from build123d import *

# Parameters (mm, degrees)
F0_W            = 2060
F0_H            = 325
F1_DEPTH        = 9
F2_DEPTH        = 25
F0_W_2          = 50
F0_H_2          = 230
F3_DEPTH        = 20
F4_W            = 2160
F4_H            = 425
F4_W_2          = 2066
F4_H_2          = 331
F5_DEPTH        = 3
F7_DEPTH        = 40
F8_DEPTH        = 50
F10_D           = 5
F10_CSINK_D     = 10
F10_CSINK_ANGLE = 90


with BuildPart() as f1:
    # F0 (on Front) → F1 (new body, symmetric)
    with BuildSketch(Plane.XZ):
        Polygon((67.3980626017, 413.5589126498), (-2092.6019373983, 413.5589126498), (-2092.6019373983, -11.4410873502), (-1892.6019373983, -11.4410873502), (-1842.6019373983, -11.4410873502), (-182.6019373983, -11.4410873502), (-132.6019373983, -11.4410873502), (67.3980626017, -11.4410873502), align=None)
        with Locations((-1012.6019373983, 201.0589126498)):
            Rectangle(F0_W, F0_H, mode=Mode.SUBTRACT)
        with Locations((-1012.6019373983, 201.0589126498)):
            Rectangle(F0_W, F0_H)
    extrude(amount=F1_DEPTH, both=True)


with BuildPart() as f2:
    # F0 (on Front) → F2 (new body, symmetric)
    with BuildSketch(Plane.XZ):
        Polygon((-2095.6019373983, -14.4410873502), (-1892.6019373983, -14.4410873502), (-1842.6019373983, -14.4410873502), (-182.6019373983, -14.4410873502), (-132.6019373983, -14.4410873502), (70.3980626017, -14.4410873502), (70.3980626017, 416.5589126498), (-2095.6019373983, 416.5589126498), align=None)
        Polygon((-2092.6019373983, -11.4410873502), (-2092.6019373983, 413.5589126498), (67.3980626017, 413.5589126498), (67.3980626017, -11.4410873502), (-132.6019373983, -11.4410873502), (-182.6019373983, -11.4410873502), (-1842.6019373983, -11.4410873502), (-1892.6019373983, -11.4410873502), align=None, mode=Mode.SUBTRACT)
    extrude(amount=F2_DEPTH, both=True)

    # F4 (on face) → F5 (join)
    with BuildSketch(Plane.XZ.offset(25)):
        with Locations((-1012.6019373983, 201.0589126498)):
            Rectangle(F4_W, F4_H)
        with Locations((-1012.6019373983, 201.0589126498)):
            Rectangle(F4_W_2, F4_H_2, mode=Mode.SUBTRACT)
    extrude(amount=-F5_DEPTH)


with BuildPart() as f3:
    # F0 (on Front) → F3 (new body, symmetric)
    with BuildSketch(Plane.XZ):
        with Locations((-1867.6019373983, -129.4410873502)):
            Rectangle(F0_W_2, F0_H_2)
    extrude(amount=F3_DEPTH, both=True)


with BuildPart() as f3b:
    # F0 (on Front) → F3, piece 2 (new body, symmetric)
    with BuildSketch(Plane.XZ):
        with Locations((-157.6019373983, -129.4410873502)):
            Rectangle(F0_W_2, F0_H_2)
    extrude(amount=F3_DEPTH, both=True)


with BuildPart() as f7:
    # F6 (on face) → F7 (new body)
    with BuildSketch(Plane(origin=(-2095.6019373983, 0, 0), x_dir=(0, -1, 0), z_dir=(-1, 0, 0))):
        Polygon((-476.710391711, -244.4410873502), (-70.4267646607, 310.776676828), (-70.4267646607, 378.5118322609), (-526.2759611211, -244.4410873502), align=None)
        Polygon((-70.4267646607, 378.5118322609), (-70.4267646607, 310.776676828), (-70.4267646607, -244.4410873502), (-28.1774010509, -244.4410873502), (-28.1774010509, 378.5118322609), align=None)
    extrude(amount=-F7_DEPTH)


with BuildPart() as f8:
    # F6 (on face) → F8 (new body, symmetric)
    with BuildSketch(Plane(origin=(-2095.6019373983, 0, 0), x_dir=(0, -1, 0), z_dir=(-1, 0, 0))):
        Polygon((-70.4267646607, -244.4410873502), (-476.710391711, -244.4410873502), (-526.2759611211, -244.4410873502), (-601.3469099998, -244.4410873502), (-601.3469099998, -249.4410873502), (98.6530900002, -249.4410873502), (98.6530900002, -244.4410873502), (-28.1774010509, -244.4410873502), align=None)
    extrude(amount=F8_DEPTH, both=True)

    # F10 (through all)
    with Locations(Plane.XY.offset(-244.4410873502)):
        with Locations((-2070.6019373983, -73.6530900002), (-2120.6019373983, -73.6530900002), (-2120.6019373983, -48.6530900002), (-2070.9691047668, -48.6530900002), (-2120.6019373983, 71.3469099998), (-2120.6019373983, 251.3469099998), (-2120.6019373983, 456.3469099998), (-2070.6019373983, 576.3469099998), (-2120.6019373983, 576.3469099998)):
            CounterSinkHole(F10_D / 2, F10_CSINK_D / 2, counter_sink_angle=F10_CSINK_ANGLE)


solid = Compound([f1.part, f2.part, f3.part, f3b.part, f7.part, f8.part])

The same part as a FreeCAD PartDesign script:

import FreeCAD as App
import Part
import Sketcher
from FreeCAD import Vector
Q = App.Units.Quantity

doc = App.newDocument("Part")
body = doc.addObject("PartDesign::Body", "Body")

sketch1 = body.newObject("Sketcher::SketchObject", "Sketch")
sketch1.AttachmentSupport = (doc.getObject("XZ_Plane"), [""])
sketch1.MapMode = "FlatFace"
sketch1.addGeometry([
    Part.LineSegment(Vector(67, 414, 0), Vector(-2093, 414, 0)),
    Part.LineSegment(Vector(-2093, 414, 0), Vector(-2093, -11, 0)),
    Part.LineSegment(Vector(-2093, -11, 0), Vector(67, -11, 0)),
    Part.LineSegment(Vector(67, -11, 0), Vector(67, 414, 0)),
], False)
sketch1.addConstraint([
    Sketcher.Constraint("Coincident", 0, 2, 1, 1),
    Sketcher.Constraint("Coincident", 1, 2, 2, 1),
    Sketcher.Constraint("Coincident", 2, 2, 3, 1),
    Sketcher.Constraint("Coincident", 3, 2, 0, 1),
    Sketcher.Constraint("Horizontal", 0),
    Sketcher.Constraint("Vertical", 1),
    Sketcher.Constraint("Horizontal", 2),
    Sketcher.Constraint("Vertical", 3),
    Sketcher.Constraint("DistanceX", 0, 2, 0, 1, Q("2160 mm")),
    Sketcher.Constraint("DistanceY", 1, 2, 1, 1, Q("425 mm")),
    Sketcher.Constraint("DistanceX", 0, 2, -1, 1, Q("2092.601937 mm")),
    Sketcher.Constraint("DistanceY", -1, 1, 0, 2, Q("413.558913 mm")),
])
pad1 = body.newObject("PartDesign::Pad", "Pad")
pad1.Profile = sketch1
pad1.Length = 18
pad1.Midplane = True
body2 = doc.addObject("PartDesign::Body", "Body001")

sketch2 = body2.newObject("Sketcher::SketchObject", "Sketch001")
sketch2.AttachmentSupport = (doc.getObject("XZ_Plane001"), [""])
sketch2.MapMode = "FlatFace"
sketch2.addGeometry([
    Part.LineSegment(Vector(-2096, -14, 0), Vector(70, -14, 0)),
    Part.LineSegment(Vector(70, -14, 0), Vector(70, 417, 0)),
    Part.LineSegment(Vector(70, 417, 0), Vector(-2096, 417, 0)),
    Part.LineSegment(Vector(-2096, 417, 0), Vector(-2096, -14, 0)),
    Part.LineSegment(Vector(67, -11, 0), Vector(-2093, -11, 0)),
    Part.LineSegment(Vector(-2093, -11, 0), Vector(-2093, 414, 0)),
    Part.LineSegment(Vector(-2093, 414, 0), Vector(67, 414, 0)),
    Part.LineSegment(Vector(67, 414, 0), Vector(67, -11, 0)),
], False)
sketch2.addConstraint([
    Sketcher.Constraint("Coincident", 0, 2, 1, 1),
    Sketcher.Constraint("Coincident", 1, 2, 2, 1),
    Sketcher.Constraint("Coincident", 2, 2, 3, 1),
    Sketcher.Constraint("Coincident", 3, 2, 0, 1),
    Sketcher.Constraint("Coincident", 4, 2, 5, 1),
    Sketcher.Constraint("Coincident", 5, 2, 6, 1),
    Sketcher.Constraint("Coincident", 6, 2, 7, 1),
    Sketcher.Constraint("Coincident", 7, 2, 4, 1),
    Sketcher.Constraint("Horizontal", 0),
    Sketcher.Constraint("Vertical", 1),
    Sketcher.Constraint("Horizontal", 2),
    Sketcher.Constraint("Vertical", 3),
    Sketcher.Constraint("Horizontal", 4),
    Sketcher.Constraint("Vertical", 5),
    Sketcher.Constraint("Horizontal", 6),
    Sketcher.Constraint("Vertical", 7),
    Sketcher.Constraint("DistanceX", 0, 1, 0, 2, Q("2166 mm")),
    Sketcher.Constraint("DistanceX", 4, 2, 4, 1, Q("2160 mm")),
    Sketcher.Constraint("DistanceY", 1, 1, 1, 2, Q("431 mm")),
    Sketcher.Constraint("DistanceY", 5, 1, 5, 2, Q("425 mm")),
    Sketcher.Constraint("DistanceX", 3, 2, 4, 2, Q("3 mm")),
    Sketcher.Constraint("DistanceY", 3, 2, 4, 2, Q("3 mm")),
    Sketcher.Constraint("DistanceX", -1, 1, 0, 2, Q("70.398063 mm")),
    Sketcher.Constraint("DistanceY", 0, 2, -1, 1, Q("14.441087 mm")),
])
pad2 = body2.newObject("PartDesign::Pad", "Pad001")
pad2.Profile = sketch2
pad2.Length = 50
pad2.Midplane = True

sketch3 = body2.newObject("Sketcher::SketchObject", "Sketch002")
sketch3.AttachmentSupport = (doc.getObject("XZ_Plane001"), [""])
sketch3.MapMode = "FlatFace"
sketch3.AttachmentOffset = App.Placement(Vector(0, 0, 25), App.Rotation())
sketch3.addGeometry([
    Part.LineSegment(Vector(-2093, 414, 0), Vector(-2093, -11, 0)),
    Part.LineSegment(Vector(-2093, -11, 0), Vector(67, -11, 0)),
    Part.LineSegment(Vector(67, -11, 0), Vector(67, 414, 0)),
    Part.LineSegment(Vector(67, 414, 0), Vector(-2093, 414, 0)),
    Part.LineSegment(Vector(20, 36, 0), Vector(-2046, 36, 0)),
    Part.LineSegment(Vector(-2046, 36, 0), Vector(-2046, 367, 0)),
    Part.LineSegment(Vector(-2046, 367, 0), Vector(20, 367, 0)),
    Part.LineSegment(Vector(20, 367, 0), Vector(20, 36, 0)),
], False)
sketch3.addConstraint([
    Sketcher.Constraint("Coincident", 0, 2, 1, 1),
    Sketcher.Constraint("Coincident", 1, 2, 2, 1),
    Sketcher.Constraint("Coincident", 2, 2, 3, 1),
    Sketcher.Constraint("Coincident", 3, 2, 0, 1),
    Sketcher.Constraint("Coincident", 4, 2, 5, 1),
    Sketcher.Constraint("Coincident", 5, 2, 6, 1),
    Sketcher.Constraint("Coincident", 6, 2, 7, 1),
    Sketcher.Constraint("Coincident", 7, 2, 4, 1),
    Sketcher.Constraint("Vertical", 0),
    Sketcher.Constraint("Horizontal", 1),
    Sketcher.Constraint("Vertical", 2),
    Sketcher.Constraint("Horizontal", 3),
    Sketcher.Constraint("Horizontal", 4),
    Sketcher.Constraint("Vertical", 5),
    Sketcher.Constraint("Horizontal", 6),
    Sketcher.Constraint("Vertical", 7),
    Sketcher.Constraint("DistanceX", 1, 1, 1, 2, Q("2160 mm")),
    Sketcher.Constraint("DistanceX", 4, 2, 4, 1, Q("2066 mm")),
    Sketcher.Constraint("DistanceY", 0, 2, 0, 1, Q("425 mm")),
    Sketcher.Constraint("DistanceY", 5, 1, 5, 2, Q("331 mm")),
    Sketcher.Constraint("DistanceX", 0, 2, 4, 2, Q("47 mm")),
    Sketcher.Constraint("DistanceY", 0, 2, 4, 2, Q("47 mm")),
    Sketcher.Constraint("DistanceX", 0, 2, -1, 1, Q("2092.601937 mm")),
    Sketcher.Constraint("DistanceY", 0, 2, -1, 1, Q("11.441087 mm")),
])
pad3 = body2.newObject("PartDesign::Pad", "Pad002")
pad3.Profile = sketch3
pad3.Length = 3
pad3.Reversed = True
body3 = doc.addObject("PartDesign::Body", "Body002")

sketch4 = body3.newObject("Sketcher::SketchObject", "Sketch003")
sketch4.AttachmentSupport = (doc.getObject("XZ_Plane002"), [""])
sketch4.MapMode = "FlatFace"
sketch4.addGeometry([
    Part.LineSegment(Vector(-1893, -14, 0), Vector(-1893, -244, 0)),
    Part.LineSegment(Vector(-1893, -244, 0), Vector(-1843, -244, 0)),
    Part.LineSegment(Vector(-1843, -244, 0), Vector(-1843, -14, 0)),
    Part.LineSegment(Vector(-1843, -14, 0), Vector(-1893, -14, 0)),
], False)
sketch4.addConstraint([
    Sketcher.Constraint("Coincident", 0, 2, 1, 1),
    Sketcher.Constraint("Coincident", 1, 2, 2, 1),
    Sketcher.Constraint("Coincident", 2, 2, 3, 1),
    Sketcher.Constraint("Coincident", 3, 2, 0, 1),
    Sketcher.Constraint("Vertical", 0),
    Sketcher.Constraint("Horizontal", 1),
    Sketcher.Constraint("Vertical", 2),
    Sketcher.Constraint("Horizontal", 3),
    Sketcher.Constraint("DistanceX", 1, 1, 1, 2, Q("50 mm")),
    Sketcher.Constraint("DistanceY", 0, 2, 0, 1, Q("230 mm")),
    Sketcher.Constraint("DistanceX", 0, 2, -1, 1, Q("1892.601937 mm")),
    Sketcher.Constraint("DistanceY", 0, 2, -1, 1, Q("244.441087 mm")),
])
pad4 = body3.newObject("PartDesign::Pad", "Pad003")
pad4.Profile = sketch4
pad4.Length = 40
pad4.Midplane = True
body4 = doc.addObject("PartDesign::Body", "Body003")

sketch5 = body4.newObject("Sketcher::SketchObject", "Sketch004")
sketch5.AttachmentSupport = (doc.getObject("XZ_Plane003"), [""])
sketch5.MapMode = "FlatFace"
sketch5.addGeometry([
    Part.LineSegment(Vector(-183, -14, 0), Vector(-183, -244, 0)),
    Part.LineSegment(Vector(-183, -244, 0), Vector(-133, -244, 0)),
    Part.LineSegment(Vector(-133, -244, 0), Vector(-133, -14, 0)),
    Part.LineSegment(Vector(-133, -14, 0), Vector(-183, -14, 0)),
], False)
sketch5.addConstraint([
    Sketcher.Constraint("Coincident", 0, 2, 1, 1),
    Sketcher.Constraint("Coincident", 1, 2, 2, 1),
    Sketcher.Constraint("Coincident", 2, 2, 3, 1),
    Sketcher.Constraint("Coincident", 3, 2, 0, 1),
    Sketcher.Constraint("Vertical", 0),
    Sketcher.Constraint("Horizontal", 1),
    Sketcher.Constraint("Vertical", 2),
    Sketcher.Constraint("Horizontal", 3),
    Sketcher.Constraint("DistanceX", 1, 1, 1, 2, Q("50 mm")),
    Sketcher.Constraint("DistanceY", 0, 2, 0, 1, Q("230 mm")),
    Sketcher.Constraint("DistanceX", 0, 2, -1, 1, Q("182.601937 mm")),
    Sketcher.Constraint("DistanceY", 0, 2, -1, 1, Q("244.441087 mm")),
])
pad5 = body4.newObject("PartDesign::Pad", "Pad004")
pad5.Profile = sketch5
pad5.Length = 40
pad5.Midplane = True
body5 = doc.addObject("PartDesign::Body", "Body004")

sketch6 = body5.newObject("Sketcher::SketchObject", "Sketch005")
sketch6.AttachmentSupport = (doc.getObject("YZ_Plane004"), [""])
sketch6.MapMode = "FlatFace"
sketch6.AttachmentOffset = App.Placement(Vector(0, 0, -2095.601937), App.Rotation())
sketch6.addGeometry([
    Part.LineSegment(Vector(477, -244, 0), Vector(70, 311, 0)),
    Part.LineSegment(Vector(70, 311, 0), Vector(70, -244, 0)),
    Part.LineSegment(Vector(70, -244, 0), Vector(28, -244, 0)),
    Part.LineSegment(Vector(28, -244, 0), Vector(28, 379, 0)),
    Part.LineSegment(Vector(28, 379, 0), Vector(70, 379, 0)),
    Part.LineSegment(Vector(70, 379, 0), Vector(526, -244, 0)),
    Part.LineSegment(Vector(526, -244, 0), Vector(477, -244, 0)),
], False)
sketch6.addConstraint([
    Sketcher.Constraint("Coincident", 0, 2, 1, 1),
    Sketcher.Constraint("Coincident", 1, 2, 2, 1),
    Sketcher.Constraint("Coincident", 2, 2, 3, 1),
    Sketcher.Constraint("Coincident", 3, 2, 4, 1),
    Sketcher.Constraint("Coincident", 4, 2, 5, 1),
    Sketcher.Constraint("Coincident", 5, 2, 6, 1),
    Sketcher.Constraint("Coincident", 6, 2, 0, 1),
    Sketcher.Constraint("Vertical", 1),
    Sketcher.Constraint("Horizontal", 2),
    Sketcher.Constraint("Vertical", 3),
    Sketcher.Constraint("Horizontal", 4),
    Sketcher.Constraint("Horizontal", 6),
    Sketcher.Constraint("Parallel", 0, 5),
    Sketcher.Constraint("Horizontal", 2, 2, 5, 2),
    Sketcher.Constraint("Vertical", 1, 2, 4, 2),
    Sketcher.Constraint("DistanceX", 6, 2, 6, 1, Q("49.565569 mm")),
    Sketcher.Constraint("DistanceY", 3, 1, 3, 2, Q("622.95292 mm")),
    Sketcher.Constraint("DistanceX", -1, 1, 2, 2, Q("28.177401 mm")),
    Sketcher.Constraint("DistanceX", 2, 2, 2, 1, Q("42.249364 mm")),
    Sketcher.Constraint("DistanceY", 1, 2, 1, 1, Q("555.217764 mm")),
    Sketcher.Constraint("DistanceY", -1, 1, 0, 2, Q("310.776677 mm")),
])
pad6 = body5.newObject("PartDesign::Pad", "Pad005")
pad6.Profile = sketch6
pad6.Length = 40
body6 = doc.addObject("PartDesign::Body", "Body005")

sketch7 = body6.newObject("Sketcher::SketchObject", "Sketch006")
sketch7.AttachmentSupport = (doc.getObject("YZ_Plane005"), [""])
sketch7.MapMode = "FlatFace"
sketch7.AttachmentOffset = App.Placement(Vector(0, 0, -2095.601937), App.Rotation())
sketch7.addGeometry([
    Part.LineSegment(Vector(601, -244, 0), Vector(601, -249, 0)),
    Part.LineSegment(Vector(601, -249, 0), Vector(-99, -249, 0)),
    Part.LineSegment(Vector(-99, -249, 0), Vector(-99, -244, 0)),
    Part.LineSegment(Vector(-99, -244, 0), Vector(601, -244, 0)),
], False)
sketch7.addConstraint([
    Sketcher.Constraint("Coincident", 0, 2, 1, 1),
    Sketcher.Constraint("Coincident", 1, 2, 2, 1),
    Sketcher.Constraint("Coincident", 2, 2, 3, 1),
    Sketcher.Constraint("Coincident", 3, 2, 0, 1),
    Sketcher.Constraint("Vertical", 0),
    Sketcher.Constraint("Horizontal", 1),
    Sketcher.Constraint("Vertical", 2),
    Sketcher.Constraint("Horizontal", 3),
    Sketcher.Constraint("DistanceX", 1, 2, 1, 1, Q("700 mm")),
    Sketcher.Constraint("DistanceY", 0, 2, 0, 1, Q("5 mm")),
    Sketcher.Constraint("DistanceX", -1, 1, 0, 2, Q("601.34691 mm")),
    Sketcher.Constraint("DistanceY", 0, 2, -1, 1, Q("249.441087 mm")),
])
pad7 = body6.newObject("PartDesign::Pad", "Pad006")
pad7.Profile = sketch7
pad7.Length = 100
pad7.Midplane = True

sketch8 = body6.newObject("Sketcher::SketchObject", "Sketch007")
sketch8.AttachmentSupport = (doc.getObject("XY_Plane005"), [""])
sketch8.MapMode = "FlatFace"
sketch8.AttachmentOffset = App.Placement(Vector(0, 0, -244.441087), App.Rotation())
sketch8.addGeometry([
    Part.Circle(Vector(-2070.6, -73.7, 0), Vector(0, 0, 1), 2.5),
    Part.Circle(Vector(-2120.6, -73.7, 0), Vector(0, 0, 1), 2.5),
    Part.Circle(Vector(-2120.6, -48.7, 0), Vector(0, 0, 1), 2.5),
    Part.Circle(Vector(-2071, -48.7, 0), Vector(0, 0, 1), 2.5),
    Part.Circle(Vector(-2120.6, 71.3, 0), Vector(0, 0, 1), 2.5),
    Part.Circle(Vector(-2120.6, 251.3, 0), Vector(0, 0, 1), 2.5),
    Part.Circle(Vector(-2120.6, 456.3, 0), Vector(0, 0, 1), 2.5),
    Part.Circle(Vector(-2070.6, 576.3, 0), Vector(0, 0, 1), 2.5),
    Part.Circle(Vector(-2120.6, 576.3, 0), Vector(0, 0, 1), 2.5),
], False)
sketch8.addConstraint([
    Sketcher.Constraint("Equal", 0, 1),
    Sketcher.Constraint("Equal", 1, 2),
    Sketcher.Constraint("Equal", 2, 3),
    Sketcher.Constraint("Equal", 3, 4),
    Sketcher.Constraint("Equal", 4, 5),
    Sketcher.Constraint("Equal", 5, 6),
    Sketcher.Constraint("Equal", 6, 7),
    Sketcher.Constraint("Equal", 7, 8),
    Sketcher.Constraint("Horizontal", 0, 3, 1, 3),
    Sketcher.Constraint("Horizontal", 2, 3, 3, 3),
    Sketcher.Constraint("Horizontal", 7, 3, 8, 3),
    Sketcher.Constraint("Vertical", 1, 3, 2, 3),
    Sketcher.Constraint("Vertical", 2, 3, 4, 3),
    Sketcher.Constraint("Vertical", 4, 3, 5, 3),
    Sketcher.Constraint("Vertical", 5, 3, 6, 3),
    Sketcher.Constraint("Vertical", 0, 3, 7, 3),
    Sketcher.Constraint("Vertical", 6, 3, 8, 3),
    Sketcher.Constraint("Diameter", 0, Q("5 mm")),
    Sketcher.Constraint("DistanceX", 1, 3, 0, 3, Q("50 mm")),
    Sketcher.Constraint("DistanceY", 1, 3, 2, 3, Q("25 mm")),
    Sketcher.Constraint("DistanceY", 2, 3, 4, 3, Q("120 mm")),
    Sketcher.Constraint("DistanceY", 4, 3, 5, 3, Q("180 mm")),
    Sketcher.Constraint("DistanceY", 5, 3, 6, 3, Q("205 mm")),
    Sketcher.Constraint("DistanceY", 6, 3, 7, 3, Q("120 mm")),
    Sketcher.Constraint("DistanceY", 0, 3, -1, 1, Q("73.65309 mm")),
    Sketcher.Constraint("DistanceX", 0, 3, -1, 1, Q("2070.601937 mm")),
    Sketcher.Constraint("DistanceX", 3, 3, -1, 1, Q("2070.969105 mm")),
])
doc.recompute()
hole = body6.newObject("PartDesign::Hole", "Hole")
hole.Profile = sketch8
hole.ThreadType = "None"
hole.Diameter = 5
hole.DepthType = "ThroughAll"
hole.HoleCutType = "Countersink"
hole.HoleCutDiameter = 10
hole.HoleCutCountersinkAngle = 90

doc.recompute()
